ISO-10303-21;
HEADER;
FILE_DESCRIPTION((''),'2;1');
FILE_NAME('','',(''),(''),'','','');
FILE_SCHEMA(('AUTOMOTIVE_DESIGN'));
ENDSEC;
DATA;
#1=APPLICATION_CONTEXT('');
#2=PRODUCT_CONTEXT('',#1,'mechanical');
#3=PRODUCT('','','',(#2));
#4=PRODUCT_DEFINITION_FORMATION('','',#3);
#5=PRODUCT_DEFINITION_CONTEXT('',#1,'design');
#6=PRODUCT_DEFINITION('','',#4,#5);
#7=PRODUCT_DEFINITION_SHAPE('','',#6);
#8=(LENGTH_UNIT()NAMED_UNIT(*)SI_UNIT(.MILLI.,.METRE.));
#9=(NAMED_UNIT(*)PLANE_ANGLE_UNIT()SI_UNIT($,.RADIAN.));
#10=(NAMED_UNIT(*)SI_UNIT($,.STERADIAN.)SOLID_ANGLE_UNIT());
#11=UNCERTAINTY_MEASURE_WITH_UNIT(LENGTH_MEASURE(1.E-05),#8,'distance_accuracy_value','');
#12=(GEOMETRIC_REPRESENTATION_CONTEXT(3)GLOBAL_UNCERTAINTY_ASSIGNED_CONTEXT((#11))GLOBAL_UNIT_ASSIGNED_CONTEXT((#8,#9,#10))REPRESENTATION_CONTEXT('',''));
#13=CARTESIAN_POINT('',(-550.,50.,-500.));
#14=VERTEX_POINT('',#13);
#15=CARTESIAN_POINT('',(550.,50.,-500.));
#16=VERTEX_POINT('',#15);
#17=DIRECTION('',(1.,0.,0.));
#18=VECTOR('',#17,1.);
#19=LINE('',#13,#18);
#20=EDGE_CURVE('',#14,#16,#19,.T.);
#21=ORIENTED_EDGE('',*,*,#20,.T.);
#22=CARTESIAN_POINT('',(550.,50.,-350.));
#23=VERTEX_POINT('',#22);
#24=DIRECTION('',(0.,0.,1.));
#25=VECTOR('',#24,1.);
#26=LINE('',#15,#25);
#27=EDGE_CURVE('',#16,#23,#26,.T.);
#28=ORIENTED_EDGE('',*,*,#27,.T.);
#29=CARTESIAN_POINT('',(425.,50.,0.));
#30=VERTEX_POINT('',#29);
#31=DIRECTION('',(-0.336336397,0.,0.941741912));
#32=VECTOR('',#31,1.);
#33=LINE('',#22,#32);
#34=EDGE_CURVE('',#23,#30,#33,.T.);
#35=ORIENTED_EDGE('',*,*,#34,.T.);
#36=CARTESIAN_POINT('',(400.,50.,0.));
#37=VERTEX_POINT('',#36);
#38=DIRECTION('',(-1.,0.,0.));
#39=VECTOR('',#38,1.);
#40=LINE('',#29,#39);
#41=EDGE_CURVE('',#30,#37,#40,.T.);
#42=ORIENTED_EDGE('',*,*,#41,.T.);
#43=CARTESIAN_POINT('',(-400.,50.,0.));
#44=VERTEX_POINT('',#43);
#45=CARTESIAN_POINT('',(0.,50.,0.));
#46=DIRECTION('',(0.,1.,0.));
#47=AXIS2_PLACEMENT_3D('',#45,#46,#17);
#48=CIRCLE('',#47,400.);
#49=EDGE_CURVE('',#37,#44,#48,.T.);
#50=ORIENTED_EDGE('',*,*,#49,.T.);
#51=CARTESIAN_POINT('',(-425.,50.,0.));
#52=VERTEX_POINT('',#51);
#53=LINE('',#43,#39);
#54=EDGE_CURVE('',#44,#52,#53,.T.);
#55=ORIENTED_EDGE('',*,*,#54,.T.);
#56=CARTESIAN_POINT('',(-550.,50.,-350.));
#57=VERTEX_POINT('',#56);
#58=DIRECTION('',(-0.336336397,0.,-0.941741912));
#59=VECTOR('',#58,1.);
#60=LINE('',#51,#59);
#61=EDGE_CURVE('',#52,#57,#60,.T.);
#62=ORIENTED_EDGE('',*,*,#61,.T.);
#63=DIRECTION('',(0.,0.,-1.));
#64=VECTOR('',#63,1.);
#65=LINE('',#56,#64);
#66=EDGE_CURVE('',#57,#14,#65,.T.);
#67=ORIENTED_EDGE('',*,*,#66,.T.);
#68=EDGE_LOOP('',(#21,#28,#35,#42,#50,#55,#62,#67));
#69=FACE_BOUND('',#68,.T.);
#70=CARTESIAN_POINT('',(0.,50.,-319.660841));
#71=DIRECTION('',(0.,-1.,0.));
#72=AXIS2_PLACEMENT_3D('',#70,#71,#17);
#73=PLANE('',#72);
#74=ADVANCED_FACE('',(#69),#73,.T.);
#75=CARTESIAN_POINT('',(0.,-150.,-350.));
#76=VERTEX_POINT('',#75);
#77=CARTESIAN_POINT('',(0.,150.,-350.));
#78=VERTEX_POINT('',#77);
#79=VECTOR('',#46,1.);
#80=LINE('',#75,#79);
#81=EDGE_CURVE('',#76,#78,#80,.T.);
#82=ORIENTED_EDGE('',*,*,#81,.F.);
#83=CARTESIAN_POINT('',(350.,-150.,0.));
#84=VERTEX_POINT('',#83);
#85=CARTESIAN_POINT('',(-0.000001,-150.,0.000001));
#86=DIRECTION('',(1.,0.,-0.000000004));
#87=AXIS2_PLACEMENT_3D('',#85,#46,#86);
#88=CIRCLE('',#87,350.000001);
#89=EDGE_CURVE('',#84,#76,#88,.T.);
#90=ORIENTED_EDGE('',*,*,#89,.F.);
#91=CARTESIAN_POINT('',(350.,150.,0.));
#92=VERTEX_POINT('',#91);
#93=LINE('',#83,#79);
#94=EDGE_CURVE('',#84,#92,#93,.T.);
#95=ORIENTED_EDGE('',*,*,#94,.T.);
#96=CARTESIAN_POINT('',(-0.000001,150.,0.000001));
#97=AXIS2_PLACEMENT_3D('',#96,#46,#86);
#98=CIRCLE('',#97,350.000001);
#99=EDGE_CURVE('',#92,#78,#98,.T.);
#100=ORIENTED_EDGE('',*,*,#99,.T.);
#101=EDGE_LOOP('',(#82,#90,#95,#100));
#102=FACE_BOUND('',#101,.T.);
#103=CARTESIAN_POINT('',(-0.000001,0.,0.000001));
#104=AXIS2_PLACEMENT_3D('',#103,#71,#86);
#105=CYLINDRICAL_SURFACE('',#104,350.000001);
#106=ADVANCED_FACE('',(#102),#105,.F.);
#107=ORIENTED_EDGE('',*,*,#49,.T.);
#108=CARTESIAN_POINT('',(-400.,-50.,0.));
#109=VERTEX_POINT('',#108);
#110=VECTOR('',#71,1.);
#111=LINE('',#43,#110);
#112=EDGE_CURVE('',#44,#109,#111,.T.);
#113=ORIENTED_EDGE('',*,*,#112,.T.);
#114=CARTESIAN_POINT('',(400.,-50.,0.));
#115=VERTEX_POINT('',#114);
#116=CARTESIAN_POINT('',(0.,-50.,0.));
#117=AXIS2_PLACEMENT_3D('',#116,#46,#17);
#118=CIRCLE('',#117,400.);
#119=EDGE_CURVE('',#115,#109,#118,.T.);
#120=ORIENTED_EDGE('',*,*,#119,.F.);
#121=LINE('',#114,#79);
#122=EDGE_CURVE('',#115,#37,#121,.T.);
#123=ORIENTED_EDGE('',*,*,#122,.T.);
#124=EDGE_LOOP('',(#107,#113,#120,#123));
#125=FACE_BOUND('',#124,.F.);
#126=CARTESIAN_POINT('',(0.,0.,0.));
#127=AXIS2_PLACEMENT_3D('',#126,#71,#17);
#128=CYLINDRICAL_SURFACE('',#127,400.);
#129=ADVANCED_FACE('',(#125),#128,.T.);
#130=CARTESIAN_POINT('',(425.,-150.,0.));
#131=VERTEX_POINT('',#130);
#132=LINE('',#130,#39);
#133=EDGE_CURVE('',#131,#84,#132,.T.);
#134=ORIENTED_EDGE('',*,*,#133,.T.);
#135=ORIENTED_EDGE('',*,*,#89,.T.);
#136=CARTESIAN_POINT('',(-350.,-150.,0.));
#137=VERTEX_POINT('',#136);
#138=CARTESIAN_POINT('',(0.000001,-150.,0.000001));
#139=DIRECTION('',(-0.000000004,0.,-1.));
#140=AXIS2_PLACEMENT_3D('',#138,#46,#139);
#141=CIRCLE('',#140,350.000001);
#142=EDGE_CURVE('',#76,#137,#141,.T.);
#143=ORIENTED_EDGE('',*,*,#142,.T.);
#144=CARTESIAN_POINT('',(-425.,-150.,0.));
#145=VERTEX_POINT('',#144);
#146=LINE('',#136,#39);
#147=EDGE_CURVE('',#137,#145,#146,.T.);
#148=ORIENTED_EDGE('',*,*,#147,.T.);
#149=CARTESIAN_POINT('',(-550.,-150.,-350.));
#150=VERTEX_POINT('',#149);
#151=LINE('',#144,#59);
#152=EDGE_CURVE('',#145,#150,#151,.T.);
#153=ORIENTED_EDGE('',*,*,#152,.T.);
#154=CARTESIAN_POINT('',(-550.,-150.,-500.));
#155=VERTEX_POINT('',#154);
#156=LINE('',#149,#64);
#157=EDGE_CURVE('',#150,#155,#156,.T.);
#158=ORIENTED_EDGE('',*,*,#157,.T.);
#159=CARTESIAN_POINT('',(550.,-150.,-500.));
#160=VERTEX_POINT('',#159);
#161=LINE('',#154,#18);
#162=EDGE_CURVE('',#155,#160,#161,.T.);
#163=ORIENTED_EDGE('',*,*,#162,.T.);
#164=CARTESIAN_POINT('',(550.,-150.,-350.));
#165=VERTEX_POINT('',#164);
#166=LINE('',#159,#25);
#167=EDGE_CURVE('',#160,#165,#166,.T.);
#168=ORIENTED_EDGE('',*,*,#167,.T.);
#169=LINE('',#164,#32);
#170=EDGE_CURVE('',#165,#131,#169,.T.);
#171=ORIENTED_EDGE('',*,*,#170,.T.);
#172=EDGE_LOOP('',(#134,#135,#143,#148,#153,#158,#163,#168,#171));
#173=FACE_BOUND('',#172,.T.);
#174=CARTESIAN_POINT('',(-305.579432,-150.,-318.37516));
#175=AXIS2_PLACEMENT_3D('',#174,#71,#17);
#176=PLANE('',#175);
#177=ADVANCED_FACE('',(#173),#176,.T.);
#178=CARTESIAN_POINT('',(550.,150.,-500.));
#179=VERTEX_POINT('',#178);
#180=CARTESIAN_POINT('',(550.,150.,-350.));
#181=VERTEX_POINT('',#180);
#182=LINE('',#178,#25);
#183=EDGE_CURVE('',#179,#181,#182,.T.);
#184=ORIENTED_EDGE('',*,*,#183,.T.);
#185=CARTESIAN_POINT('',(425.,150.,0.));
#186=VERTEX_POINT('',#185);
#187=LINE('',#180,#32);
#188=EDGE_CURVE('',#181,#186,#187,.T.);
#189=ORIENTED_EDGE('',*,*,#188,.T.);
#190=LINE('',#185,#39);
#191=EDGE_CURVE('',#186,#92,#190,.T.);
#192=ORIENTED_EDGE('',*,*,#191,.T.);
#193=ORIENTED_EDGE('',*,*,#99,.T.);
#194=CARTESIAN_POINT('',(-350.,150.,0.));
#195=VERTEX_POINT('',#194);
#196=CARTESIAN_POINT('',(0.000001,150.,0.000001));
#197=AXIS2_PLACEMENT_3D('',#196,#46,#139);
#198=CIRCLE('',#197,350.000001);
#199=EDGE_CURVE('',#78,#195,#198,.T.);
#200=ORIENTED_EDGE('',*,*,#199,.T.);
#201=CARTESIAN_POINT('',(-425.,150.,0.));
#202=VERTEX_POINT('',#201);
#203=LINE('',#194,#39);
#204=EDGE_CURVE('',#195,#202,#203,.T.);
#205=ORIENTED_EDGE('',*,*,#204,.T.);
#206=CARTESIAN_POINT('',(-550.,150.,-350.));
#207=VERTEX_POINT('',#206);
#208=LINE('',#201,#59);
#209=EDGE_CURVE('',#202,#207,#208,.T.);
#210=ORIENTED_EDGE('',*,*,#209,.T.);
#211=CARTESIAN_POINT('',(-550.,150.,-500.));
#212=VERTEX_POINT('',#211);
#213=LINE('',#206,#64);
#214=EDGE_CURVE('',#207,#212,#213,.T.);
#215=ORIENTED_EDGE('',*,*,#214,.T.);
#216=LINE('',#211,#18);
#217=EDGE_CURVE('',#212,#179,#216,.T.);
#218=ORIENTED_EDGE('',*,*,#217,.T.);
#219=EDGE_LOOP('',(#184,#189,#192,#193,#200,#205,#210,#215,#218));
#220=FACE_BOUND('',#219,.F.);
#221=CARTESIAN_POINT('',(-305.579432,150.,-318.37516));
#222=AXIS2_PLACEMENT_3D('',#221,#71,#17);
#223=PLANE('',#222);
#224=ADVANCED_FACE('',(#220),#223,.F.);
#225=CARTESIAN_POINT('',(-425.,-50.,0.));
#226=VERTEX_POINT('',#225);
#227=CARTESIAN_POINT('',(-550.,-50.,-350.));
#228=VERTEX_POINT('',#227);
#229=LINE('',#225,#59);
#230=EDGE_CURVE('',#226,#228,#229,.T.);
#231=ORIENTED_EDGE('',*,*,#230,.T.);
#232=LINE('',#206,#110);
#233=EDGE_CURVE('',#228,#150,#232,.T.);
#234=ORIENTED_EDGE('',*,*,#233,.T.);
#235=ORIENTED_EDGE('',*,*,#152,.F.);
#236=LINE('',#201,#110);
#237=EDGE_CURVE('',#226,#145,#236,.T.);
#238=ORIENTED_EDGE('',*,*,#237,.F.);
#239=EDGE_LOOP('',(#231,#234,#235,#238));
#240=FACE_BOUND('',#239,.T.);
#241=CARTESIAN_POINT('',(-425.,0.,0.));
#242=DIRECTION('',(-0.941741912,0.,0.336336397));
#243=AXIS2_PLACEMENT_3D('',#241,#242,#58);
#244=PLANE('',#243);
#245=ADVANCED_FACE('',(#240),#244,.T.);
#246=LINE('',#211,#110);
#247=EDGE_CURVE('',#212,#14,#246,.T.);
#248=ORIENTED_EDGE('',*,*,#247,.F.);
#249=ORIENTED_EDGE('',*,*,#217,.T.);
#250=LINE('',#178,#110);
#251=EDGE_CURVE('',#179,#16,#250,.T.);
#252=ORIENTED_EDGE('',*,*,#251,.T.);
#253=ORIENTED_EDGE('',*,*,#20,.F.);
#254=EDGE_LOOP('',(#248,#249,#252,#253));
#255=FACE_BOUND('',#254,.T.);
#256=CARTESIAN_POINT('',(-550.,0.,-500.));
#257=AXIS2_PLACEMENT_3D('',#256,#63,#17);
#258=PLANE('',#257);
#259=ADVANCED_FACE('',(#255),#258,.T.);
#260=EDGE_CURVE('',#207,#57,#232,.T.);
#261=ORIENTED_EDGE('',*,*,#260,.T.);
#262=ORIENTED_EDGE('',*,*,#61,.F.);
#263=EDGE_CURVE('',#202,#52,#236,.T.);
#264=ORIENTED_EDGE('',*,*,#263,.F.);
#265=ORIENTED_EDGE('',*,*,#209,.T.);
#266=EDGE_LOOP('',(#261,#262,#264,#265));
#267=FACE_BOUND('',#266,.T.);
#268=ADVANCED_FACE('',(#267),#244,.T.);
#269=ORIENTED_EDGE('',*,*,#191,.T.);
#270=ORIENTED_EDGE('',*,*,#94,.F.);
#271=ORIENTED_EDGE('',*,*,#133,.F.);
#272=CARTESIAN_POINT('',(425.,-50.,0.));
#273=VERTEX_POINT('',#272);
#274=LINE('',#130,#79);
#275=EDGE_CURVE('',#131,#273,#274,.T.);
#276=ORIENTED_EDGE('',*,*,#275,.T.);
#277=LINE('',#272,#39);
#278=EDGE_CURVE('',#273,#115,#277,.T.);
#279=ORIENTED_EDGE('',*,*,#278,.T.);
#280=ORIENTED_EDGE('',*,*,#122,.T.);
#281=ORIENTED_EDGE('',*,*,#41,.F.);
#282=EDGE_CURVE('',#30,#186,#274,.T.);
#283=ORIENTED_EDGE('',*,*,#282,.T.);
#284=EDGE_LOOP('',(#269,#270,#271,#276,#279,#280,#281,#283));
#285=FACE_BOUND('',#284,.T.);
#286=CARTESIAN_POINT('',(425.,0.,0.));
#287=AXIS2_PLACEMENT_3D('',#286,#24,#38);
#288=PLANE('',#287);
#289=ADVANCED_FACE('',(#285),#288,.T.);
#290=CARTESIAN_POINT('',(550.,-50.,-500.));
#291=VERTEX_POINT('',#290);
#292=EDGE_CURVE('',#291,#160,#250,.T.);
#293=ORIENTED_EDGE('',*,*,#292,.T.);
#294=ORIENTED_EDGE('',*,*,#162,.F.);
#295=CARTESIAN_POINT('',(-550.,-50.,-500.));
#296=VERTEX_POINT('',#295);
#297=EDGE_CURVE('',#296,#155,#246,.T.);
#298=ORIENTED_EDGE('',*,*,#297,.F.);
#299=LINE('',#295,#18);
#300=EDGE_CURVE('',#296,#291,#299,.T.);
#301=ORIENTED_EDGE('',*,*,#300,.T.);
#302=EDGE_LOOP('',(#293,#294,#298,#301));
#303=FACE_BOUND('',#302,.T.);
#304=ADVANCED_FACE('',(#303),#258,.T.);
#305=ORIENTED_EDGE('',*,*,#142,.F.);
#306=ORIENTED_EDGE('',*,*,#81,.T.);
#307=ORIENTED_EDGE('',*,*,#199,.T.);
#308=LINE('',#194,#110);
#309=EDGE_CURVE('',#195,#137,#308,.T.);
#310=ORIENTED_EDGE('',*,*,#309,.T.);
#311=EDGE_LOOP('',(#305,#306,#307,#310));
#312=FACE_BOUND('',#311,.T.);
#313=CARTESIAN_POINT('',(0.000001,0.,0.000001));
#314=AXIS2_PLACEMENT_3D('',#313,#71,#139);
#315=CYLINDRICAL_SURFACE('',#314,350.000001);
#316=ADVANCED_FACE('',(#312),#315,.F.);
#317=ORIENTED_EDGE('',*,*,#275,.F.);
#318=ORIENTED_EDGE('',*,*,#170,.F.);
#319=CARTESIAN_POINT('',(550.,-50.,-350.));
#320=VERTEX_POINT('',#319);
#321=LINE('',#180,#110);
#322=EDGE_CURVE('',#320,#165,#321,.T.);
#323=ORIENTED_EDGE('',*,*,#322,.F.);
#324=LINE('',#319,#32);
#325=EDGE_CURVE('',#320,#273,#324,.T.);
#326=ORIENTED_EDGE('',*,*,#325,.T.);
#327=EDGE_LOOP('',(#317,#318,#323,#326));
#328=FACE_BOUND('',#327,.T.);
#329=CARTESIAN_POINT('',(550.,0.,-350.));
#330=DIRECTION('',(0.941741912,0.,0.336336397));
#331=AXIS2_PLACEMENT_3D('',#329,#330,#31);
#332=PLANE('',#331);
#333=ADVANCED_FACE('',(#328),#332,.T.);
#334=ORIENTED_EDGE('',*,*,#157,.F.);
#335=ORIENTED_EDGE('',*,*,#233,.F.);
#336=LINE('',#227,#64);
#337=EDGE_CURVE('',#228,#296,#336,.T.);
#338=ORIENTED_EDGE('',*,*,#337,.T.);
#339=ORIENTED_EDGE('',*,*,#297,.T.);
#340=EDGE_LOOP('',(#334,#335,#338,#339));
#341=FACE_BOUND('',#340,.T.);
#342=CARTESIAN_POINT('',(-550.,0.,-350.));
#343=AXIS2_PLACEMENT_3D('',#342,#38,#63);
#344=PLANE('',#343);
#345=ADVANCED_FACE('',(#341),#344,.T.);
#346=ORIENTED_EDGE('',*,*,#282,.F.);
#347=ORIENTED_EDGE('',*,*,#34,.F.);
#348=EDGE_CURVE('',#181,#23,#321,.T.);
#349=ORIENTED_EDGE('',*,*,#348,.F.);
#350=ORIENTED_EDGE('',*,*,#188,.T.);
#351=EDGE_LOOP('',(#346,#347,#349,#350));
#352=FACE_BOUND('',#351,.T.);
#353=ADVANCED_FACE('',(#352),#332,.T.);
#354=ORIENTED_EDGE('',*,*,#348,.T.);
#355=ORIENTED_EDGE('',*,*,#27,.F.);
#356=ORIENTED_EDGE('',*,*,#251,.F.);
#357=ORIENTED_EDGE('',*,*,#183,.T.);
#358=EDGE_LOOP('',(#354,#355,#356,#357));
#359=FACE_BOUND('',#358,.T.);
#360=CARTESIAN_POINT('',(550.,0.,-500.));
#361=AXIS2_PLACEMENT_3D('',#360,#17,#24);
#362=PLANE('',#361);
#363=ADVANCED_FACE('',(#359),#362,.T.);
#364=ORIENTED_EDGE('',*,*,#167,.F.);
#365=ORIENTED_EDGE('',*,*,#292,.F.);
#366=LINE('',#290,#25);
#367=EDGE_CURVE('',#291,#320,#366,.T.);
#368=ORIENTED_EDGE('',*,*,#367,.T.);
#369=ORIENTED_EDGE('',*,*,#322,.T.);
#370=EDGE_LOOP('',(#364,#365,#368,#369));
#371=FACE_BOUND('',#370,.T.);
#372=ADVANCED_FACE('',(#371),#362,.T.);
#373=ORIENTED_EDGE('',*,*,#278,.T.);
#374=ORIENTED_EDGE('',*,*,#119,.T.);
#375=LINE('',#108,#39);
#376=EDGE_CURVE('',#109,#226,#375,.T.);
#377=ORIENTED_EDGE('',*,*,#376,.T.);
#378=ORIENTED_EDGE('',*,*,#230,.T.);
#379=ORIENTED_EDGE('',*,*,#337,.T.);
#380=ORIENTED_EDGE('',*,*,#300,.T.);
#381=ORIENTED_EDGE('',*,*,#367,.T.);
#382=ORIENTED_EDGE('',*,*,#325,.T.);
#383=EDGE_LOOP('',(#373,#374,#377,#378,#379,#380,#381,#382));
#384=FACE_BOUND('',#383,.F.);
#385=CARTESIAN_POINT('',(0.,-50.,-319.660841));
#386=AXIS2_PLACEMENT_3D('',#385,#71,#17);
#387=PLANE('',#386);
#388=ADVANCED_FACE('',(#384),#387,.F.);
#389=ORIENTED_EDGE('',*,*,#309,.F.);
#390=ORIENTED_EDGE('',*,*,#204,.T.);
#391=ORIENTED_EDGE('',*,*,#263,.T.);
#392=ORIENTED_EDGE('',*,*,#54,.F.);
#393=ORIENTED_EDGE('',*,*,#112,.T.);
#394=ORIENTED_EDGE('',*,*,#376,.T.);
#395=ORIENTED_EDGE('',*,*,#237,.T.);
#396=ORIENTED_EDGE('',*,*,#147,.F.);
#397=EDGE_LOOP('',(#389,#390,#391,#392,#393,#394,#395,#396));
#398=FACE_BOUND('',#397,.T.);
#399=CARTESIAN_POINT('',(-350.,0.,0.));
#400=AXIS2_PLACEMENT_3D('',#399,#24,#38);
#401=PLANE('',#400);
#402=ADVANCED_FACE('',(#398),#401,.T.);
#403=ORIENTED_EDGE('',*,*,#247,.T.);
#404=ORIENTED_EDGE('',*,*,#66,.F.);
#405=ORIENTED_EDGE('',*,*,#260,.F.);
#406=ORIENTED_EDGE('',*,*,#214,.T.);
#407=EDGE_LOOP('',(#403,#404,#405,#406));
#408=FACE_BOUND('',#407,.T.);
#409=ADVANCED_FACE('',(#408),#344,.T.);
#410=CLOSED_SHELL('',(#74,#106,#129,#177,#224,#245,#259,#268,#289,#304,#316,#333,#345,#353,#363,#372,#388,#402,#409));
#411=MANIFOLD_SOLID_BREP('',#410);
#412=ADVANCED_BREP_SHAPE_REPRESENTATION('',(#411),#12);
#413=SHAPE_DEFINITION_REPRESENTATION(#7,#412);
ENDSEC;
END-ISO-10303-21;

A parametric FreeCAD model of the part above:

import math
import FreeCAD as App
import Part
import Sketcher
from FreeCAD import Vector
Q = App.Units.Quantity

doc = App.newDocument("Part")
body = doc.addObject("PartDesign::Body", "Body")

# Sketch on XZ plane
sketch1 = doc.addObject("Sketcher::SketchObject", "Sketch")
body.addObject(sketch1)
sketch1.AttachmentSupport = (doc.XZ_Plane, [""])
sketch1.MapMode = "FlatFace"
sketch1.addGeometry(Part.ArcOfCircle(Part.Circle(Vector(0, 0, 0), Vector(0, 0, 1), 350), math.radians(-180), math.radians(-90)), False)
sketch1.addGeometry(Part.LineSegment(Vector(-350, 0, 0), Vector(-425, 0, 0)), False)
sketch1.addGeometry(Part.LineSegment(Vector(-425, 0, 0), Vector(-550, -350, 0)), False)
sketch1.addGeometry(Part.LineSegment(Vector(-550, -350, 0), Vector(-550, -500, 0)), False)
sketch1.addGeometry(Part.LineSegment(Vector(-550, -500, 0), Vector(550, -500, 0)), False)
sketch1.addGeometry(Part.LineSegment(Vector(550, -500, 0), Vector(550, -350, 0)), False)
sketch1.addGeometry(Part.LineSegment(Vector(550, -350, 0), Vector(425, 0, 0)), False)
sketch1.addGeometry(Part.LineSegment(Vector(425, 0, 0), Vector(350, 0, 0)), False)
sketch1.addGeometry(Part.ArcOfCircle(Part.Circle(Vector(0, 0, 0), Vector(0, 0, 1), 350), math.radians(-90), math.radians(0)), False)
sketch1.addConstraint(Sketcher.Constraint("Coincident", 0, 1, 1, 1))
sketch1.addConstraint(Sketcher.Constraint("Coincident", 1, 2, 2, 1))
sketch1.addConstraint(Sketcher.Constraint("Coincident", 2, 2, 3, 1))
sketch1.addConstraint(Sketcher.Constraint("Coincident", 3, 2, 4, 1))
sketch1.addConstraint(Sketcher.Constraint("Coincident", 4, 2, 5, 1))
sketch1.addConstraint(Sketcher.Constraint("Coincident", 5, 2, 6, 1))
sketch1.addConstraint(Sketcher.Constraint("Coincident", 6, 2, 7, 1))
sketch1.addConstraint(Sketcher.Constraint("Coincident", 7, 2, 8, 2))
sketch1.addConstraint(Sketcher.Constraint("Tangent", 8, 1, 0, 2))
sketch1.addConstraint(Sketcher.Constraint("Horizontal", 1))
sketch1.addConstraint(Sketcher.Constraint("Vertical", 3))
sketch1.addConstraint(Sketcher.Constraint("Horizontal", 4))
sketch1.addConstraint(Sketcher.Constraint("Vertical", 5))
sketch1.addConstraint(Sketcher.Constraint("Horizontal", 7))
sketch1.addConstraint(Sketcher.Constraint("Coincident", 0, 3, -1, 1))
sketch1.addConstraint(Sketcher.Constraint("Equal", 0, 8))
sketch1.addConstraint(Sketcher.Constraint("Symmetric", 1, 2, 6, 2, -1, 1))
sketch1.addConstraint(Sketcher.Constraint("Symmetric", 2, 2, 5, 2, -2))
sketch1.addConstraint(Sketcher.Constraint("PointOnObject", 1, 2, -1))
sketch1.addConstraint(Sketcher.Constraint("PointOnObject", 8, 1, -2))
sketch1.addConstraint(Sketcher.Constraint("Horizontal", 5, 2, 8, 1))
sketch1.addConstraint(Sketcher.Constraint("Radius", 0, Q("350.000001 mm")))
sketch1.addConstraint(Sketcher.Constraint("DistanceX", 1, 2, 1, 1, Q("75 mm")))
sketch1.addConstraint(Sketcher.Constraint("DistanceX", 4, 1, 4, 2, Q("1100 mm")))
sketch1.addConstraint(Sketcher.Constraint("DistanceY", 3, 2, 3, 1, Q("150 mm")))
pad1 = doc.addObject("PartDesign::Pad", "Pad")
body.addObject(pad1)
pad1.Profile = sketch1
pad1.Length = 300
pad1.Midplane = True

# Sketch on XZ plane
sketch2 = doc.addObject("Sketcher::SketchObject", "Sketch001")
body.addObject(sketch2)
sketch2.AttachmentSupport = (doc.XZ_Plane, [""])
sketch2.MapMode = "FlatFace"
sketch2.addGeometry(Part.ArcOfCircle(Part.Circle(Vector(0, 0, 0), Vector(0, 0, 1), 400), math.radians(180), math.radians(360)), False)
sketch2.addGeometry(Part.LineSegment(Vector(-400, 0, 0), Vector(-425, 0, 0)), False)
sketch2.addGeometry(Part.LineSegment(Vector(-425, 0, 0), Vector(-550, -350, 0)), False)
sketch2.addGeometry(Part.LineSegment(Vector(-550, -350, 0), Vector(-550, -500, 0)), False)
sketch2.addGeometry(Part.LineSegment(Vector(-550, -500, 0), Vector(550, -500, 0)), False)
sketch2.addGeometry(Part.LineSegment(Vector(550, -500, 0), Vector(550, -350, 0)), False)
sketch2.addGeometry(Part.LineSegment(Vector(550, -350, 0), Vector(425, 0, 0)), False)
sketch2.addGeometry(Part.LineSegment(Vector(425, 0, 0), Vector(400, 0, 0)), False)
sketch2.addConstraint(Sketcher.Constraint("Coincident", 0, 1, 1, 1))
sketch2.addConstraint(Sketcher.Constraint("Coincident", 1, 2, 2, 1))
sketch2.addConstraint(Sketcher.Constraint("Coincident", 2, 2, 3, 1))
sketch2.addConstraint(Sketcher.Constraint("Coincident", 3, 2, 4, 1))
sketch2.addConstraint(Sketcher.Constraint("Coincident", 4, 2, 5, 1))
sketch2.addConstraint(Sketcher.Constraint("Coincident", 5, 2, 6, 1))
sketch2.addConstraint(Sketcher.Constraint("Coincident", 6, 2, 7, 1))
sketch2.addConstraint(Sketcher.Constraint("Coincident", 7, 2, 0, 2))
sketch2.addConstraint(Sketcher.Constraint("Horizontal", 1))
sketch2.addConstraint(Sketcher.Constraint("Vertical", 3))
sketch2.addConstraint(Sketcher.Constraint("Horizontal", 4))
sketch2.addConstraint(Sketcher.Constraint("Vertical", 5))
sketch2.addConstraint(Sketcher.Constraint("Horizontal", 7))
sketch2.addConstraint(Sketcher.Constraint("Coincident", 0, 3, -1, 1))
sketch2.addConstraint(Sketcher.Constraint("Symmetric", 1, 2, 6, 2, -1, 1))
sketch2.addConstraint(Sketcher.Constraint("Symmetric", 2, 2, 5, 2, -2))
sketch2.addConstraint(Sketcher.Constraint("PointOnObject", 1, 2, -1))
sketch2.addConstraint(Sketcher.Constraint("Radius", 0, Q("400 mm")))
sketch2.addConstraint(Sketcher.Constraint("DistanceX", 1, 2, 1, 1, Q("25 mm")))
sketch2.addConstraint(Sketcher.Constraint("DistanceX", 4, 1, 4, 2, Q("1100 mm")))
sketch2.addConstraint(Sketcher.Constraint("DistanceY", 3, 2, 3, 1, Q("150 mm")))
sketch2.addConstraint(Sketcher.Constraint("DistanceY", 2, 2, -1, 1, Q("350 mm")))
pocket1 = doc.addObject("PartDesign::Pocket", "Pocket")
body.addObject(pocket1)
pocket1.Profile = sketch2
pocket1.Length = 100
pocket1.Midplane = True

doc.recompute()
